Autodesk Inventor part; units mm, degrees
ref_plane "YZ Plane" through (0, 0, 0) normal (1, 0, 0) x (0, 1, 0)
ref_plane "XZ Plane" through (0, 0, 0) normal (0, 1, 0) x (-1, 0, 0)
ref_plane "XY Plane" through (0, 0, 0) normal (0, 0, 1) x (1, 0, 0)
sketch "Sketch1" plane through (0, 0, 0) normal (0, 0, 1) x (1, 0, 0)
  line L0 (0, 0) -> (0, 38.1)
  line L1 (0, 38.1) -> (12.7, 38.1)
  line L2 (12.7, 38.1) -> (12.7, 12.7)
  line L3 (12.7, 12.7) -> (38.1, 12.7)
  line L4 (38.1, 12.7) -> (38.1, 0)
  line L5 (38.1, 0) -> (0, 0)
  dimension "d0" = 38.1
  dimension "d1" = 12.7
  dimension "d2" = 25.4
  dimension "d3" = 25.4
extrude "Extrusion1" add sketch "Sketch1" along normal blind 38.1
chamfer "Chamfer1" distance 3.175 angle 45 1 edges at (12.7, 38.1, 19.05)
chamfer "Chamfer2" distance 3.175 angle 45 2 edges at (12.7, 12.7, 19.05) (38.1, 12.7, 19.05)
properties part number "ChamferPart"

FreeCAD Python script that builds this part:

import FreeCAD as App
import Part
import Sketcher
Q = App.Units.Quantity


def edges_at(feature, points):
    """Names of the edges that pass closest to the given points."""
    edges = feature.Shape.Edges
    near = lambda p: min(range(len(edges)), key=lambda i: edges[i].distToShape(Part.Vertex(*p))[0])
    return sorted({f"Edge{near(p) + 1}" for p in points})


def add_polygon(sketch, points):
    """Adds a closed chain of lines whose ends are joined by coincident constraints."""
    first, n = sketch.GeometryCount, len(points)
    for a, b in zip(points, points[1:] + points[:1]):
        sketch.addGeometry(Part.LineSegment(App.Vector(*a, 0), App.Vector(*b, 0)), False)
    for i in range(n):
        sketch.addConstraint(Sketcher.Constraint("Coincident", first + i, 2, first + (i + 1) % n, 1))

doc = App.newDocument("Part")
body = doc.addObject("PartDesign::Body", "Body")

sketch1 = body.newObject("Sketcher::SketchObject", "Sketch")
sketch1.AttachmentSupport = (doc.getObject("XY_Plane"), [""])
sketch1.MapMode = "FlatFace"
add_polygon(sketch1, [(0, 38.1), (0, 0), (38.1, 0), (38.1, 12.7), (12.7, 12.7), (12.7, 38.1)])
sketch1.addConstraint([
    Sketcher.Constraint("Vertical", 0),
    Sketcher.Constraint("Horizontal", 1),
    Sketcher.Constraint("Vertical", 2),
    Sketcher.Constraint("Horizontal", 3),
    Sketcher.Constraint("Vertical", 4),
    Sketcher.Constraint("Horizontal", 5),
    Sketcher.Constraint("Coincident", 0, 2, -1, 1),
    Sketcher.Constraint("Equal", 1, 0),
    Sketcher.Constraint("Equal", 5, 2),
    Sketcher.Constraint("DistanceX", 3, 2, 3, 1, Q("1 in")),
    Sketcher.Constraint("DistanceX", 1, 1, 1, 2, Q("1.5 in")),
])
pad1 = body.newObject("PartDesign::Pad", "Pad")
pad1.Profile = sketch1
pad1.Length = Q("1.5 in")
doc.recompute()

chamfer = body.newObject("PartDesign::Chamfer", "Chamfer")
chamfer.Base = (pad1, edges_at(pad1, [(12.7, 38.1, 19.05)]))
chamfer.Size = Q("0.125 in")
doc.recompute()

chamfer2 = body.newObject("PartDesign::Chamfer", "Chamfer001")
chamfer2.Base = (chamfer, edges_at(chamfer, [(12.7, 12.7, 19.05), (38.1, 12.7, 19.05)]))
chamfer2.Size = Q("0.125 in")

doc.recompute()
